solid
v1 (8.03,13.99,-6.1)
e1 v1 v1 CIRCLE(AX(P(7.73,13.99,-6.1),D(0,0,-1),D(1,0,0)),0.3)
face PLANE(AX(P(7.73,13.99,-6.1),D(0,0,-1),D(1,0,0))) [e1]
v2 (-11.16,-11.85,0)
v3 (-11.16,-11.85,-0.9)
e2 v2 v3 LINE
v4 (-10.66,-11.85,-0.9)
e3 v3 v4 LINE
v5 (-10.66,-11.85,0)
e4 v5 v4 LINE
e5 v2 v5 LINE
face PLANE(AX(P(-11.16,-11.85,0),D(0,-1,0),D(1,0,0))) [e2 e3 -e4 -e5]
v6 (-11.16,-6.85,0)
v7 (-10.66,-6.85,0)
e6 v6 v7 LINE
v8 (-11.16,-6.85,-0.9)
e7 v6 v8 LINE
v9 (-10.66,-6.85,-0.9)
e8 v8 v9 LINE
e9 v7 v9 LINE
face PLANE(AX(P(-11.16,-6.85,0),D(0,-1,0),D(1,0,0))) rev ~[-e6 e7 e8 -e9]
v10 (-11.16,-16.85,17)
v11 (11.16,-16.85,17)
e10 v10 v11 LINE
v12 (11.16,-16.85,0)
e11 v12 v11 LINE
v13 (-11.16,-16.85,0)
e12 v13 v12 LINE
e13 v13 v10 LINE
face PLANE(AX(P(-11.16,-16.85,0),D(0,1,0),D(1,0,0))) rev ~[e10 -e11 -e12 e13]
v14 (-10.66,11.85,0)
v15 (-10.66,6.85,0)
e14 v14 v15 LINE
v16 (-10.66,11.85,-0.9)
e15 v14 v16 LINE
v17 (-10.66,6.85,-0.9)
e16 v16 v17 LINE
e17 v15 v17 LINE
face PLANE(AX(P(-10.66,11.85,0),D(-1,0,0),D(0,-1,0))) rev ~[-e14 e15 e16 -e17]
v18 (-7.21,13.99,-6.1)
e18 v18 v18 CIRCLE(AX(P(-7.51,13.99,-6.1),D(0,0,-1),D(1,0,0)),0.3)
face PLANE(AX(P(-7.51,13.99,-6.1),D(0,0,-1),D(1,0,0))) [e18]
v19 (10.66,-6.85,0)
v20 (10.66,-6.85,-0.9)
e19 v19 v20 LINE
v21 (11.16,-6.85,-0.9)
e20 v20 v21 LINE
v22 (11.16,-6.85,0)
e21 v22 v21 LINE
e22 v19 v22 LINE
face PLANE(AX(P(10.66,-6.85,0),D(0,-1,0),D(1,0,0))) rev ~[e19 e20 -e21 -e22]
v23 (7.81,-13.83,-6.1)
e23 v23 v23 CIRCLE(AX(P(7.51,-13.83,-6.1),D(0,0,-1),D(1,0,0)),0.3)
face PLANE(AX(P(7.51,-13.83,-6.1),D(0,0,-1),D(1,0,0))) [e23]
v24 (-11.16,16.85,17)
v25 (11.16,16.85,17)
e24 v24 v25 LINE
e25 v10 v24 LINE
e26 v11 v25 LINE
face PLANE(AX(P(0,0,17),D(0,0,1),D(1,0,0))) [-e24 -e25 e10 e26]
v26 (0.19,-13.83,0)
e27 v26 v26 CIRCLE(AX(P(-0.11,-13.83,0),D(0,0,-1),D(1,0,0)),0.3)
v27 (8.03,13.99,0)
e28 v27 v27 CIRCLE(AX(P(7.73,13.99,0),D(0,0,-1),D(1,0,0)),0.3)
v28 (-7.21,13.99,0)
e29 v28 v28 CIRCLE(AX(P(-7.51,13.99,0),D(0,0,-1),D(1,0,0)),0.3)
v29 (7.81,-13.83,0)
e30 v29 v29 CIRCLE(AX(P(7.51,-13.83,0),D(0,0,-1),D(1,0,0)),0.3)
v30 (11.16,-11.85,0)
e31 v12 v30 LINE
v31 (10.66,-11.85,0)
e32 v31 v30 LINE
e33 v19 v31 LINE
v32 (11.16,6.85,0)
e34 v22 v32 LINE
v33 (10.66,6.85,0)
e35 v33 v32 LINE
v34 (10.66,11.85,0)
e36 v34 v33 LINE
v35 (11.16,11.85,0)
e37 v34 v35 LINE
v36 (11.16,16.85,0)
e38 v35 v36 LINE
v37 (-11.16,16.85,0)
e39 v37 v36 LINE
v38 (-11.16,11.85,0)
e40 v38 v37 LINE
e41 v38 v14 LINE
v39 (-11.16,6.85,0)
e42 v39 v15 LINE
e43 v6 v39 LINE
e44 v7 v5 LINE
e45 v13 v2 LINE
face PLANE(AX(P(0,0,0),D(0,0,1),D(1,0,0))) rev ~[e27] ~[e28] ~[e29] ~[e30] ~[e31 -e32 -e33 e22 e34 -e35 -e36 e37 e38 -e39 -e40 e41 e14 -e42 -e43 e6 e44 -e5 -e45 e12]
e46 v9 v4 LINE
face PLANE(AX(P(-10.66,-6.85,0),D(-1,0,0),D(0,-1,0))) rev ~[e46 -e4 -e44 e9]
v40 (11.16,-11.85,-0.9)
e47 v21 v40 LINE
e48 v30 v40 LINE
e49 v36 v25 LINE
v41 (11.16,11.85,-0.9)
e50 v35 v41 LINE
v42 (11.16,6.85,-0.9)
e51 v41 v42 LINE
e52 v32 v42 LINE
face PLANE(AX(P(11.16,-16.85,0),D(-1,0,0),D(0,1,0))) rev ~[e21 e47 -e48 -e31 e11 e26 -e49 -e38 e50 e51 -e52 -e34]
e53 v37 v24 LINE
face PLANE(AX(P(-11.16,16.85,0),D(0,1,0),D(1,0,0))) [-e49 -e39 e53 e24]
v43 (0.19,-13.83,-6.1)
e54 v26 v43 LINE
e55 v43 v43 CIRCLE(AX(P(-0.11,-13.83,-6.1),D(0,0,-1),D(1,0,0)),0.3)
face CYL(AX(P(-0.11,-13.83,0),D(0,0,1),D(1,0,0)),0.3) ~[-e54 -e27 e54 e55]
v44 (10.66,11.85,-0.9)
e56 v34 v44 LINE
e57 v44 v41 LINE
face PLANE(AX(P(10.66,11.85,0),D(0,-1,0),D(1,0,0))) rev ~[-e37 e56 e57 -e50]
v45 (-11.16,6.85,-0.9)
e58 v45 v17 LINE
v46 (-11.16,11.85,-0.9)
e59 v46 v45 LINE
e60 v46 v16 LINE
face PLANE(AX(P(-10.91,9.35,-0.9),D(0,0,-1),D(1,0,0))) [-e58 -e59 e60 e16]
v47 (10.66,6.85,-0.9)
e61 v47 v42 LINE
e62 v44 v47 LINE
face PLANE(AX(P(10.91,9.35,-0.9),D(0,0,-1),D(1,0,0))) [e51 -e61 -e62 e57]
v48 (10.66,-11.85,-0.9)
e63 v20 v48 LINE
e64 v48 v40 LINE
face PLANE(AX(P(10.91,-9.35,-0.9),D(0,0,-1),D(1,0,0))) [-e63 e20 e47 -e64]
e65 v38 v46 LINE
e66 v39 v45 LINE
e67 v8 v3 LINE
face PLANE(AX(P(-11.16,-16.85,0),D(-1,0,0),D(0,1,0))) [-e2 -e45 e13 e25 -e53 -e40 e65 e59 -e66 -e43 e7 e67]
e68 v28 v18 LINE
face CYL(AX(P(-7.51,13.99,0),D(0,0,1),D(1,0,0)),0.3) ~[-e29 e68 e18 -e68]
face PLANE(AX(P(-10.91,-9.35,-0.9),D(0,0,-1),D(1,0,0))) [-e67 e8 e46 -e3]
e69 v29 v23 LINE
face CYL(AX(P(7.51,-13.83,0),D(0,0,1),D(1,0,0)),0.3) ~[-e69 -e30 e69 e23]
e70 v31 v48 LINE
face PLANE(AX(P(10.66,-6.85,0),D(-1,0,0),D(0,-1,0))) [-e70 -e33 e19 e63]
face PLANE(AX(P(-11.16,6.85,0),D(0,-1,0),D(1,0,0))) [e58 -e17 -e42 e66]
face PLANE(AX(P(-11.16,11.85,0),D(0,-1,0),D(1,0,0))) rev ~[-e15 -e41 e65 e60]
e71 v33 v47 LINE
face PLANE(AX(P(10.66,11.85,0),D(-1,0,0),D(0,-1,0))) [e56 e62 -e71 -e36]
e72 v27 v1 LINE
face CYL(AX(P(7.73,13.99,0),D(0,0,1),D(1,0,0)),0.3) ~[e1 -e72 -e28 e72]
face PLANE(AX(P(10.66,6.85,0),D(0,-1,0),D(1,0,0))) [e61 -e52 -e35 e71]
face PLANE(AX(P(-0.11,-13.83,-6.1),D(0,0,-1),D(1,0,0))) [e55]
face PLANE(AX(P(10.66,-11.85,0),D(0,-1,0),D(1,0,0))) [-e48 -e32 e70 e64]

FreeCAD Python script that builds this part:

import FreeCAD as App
import Part
import Sketcher
Q = App.Units.Quantity

doc = App.newDocument("Part")
body = doc.addObject("PartDesign::Body", "Body")

sketch1 = body.newObject("Sketcher::SketchObject", "Sketch")
sketch1.AttachmentSupport = (doc.getObject("XY_Plane"), [""])
sketch1.MapMode = "FlatFace"
sketch1.addGeometry([
    Part.LineSegment(App.Vector(-11.16, 16.85, 0), App.Vector(-11.16, -16.85, 0)),
    Part.LineSegment(App.Vector(-11.16, -16.85, 0), App.Vector(11.16, -16.85, 0)),
    Part.LineSegment(App.Vector(11.16, -16.85, 0), App.Vector(11.16, 16.85, 0)),
    Part.LineSegment(App.Vector(11.16, 16.85, 0), App.Vector(-11.16, 16.85, 0)),
], False)
sketch1.addConstraint([
    Sketcher.Constraint("Coincident", 0, 2, 1, 1),
    Sketcher.Constraint("Coincident", 1, 2, 2, 1),
    Sketcher.Constraint("Coincident", 2, 2, 3, 1),
    Sketcher.Constraint("Coincident", 3, 2, 0, 1),
    Sketcher.Constraint("Vertical", 0),
    Sketcher.Constraint("Horizontal", 1),
    Sketcher.Constraint("Vertical", 2),
    Sketcher.Constraint("Horizontal", 3),
    Sketcher.Constraint("Symmetric", 0, 2, 2, 2, -1, 1),
    Sketcher.Constraint("DistanceY", 0, 2, 0, 1, Q("33.7 mm")),
    Sketcher.Constraint("DistanceX", 1, 1, 1, 2, Q("22.32 mm")),
])
pad1 = body.newObject("PartDesign::Pad", "Pad")
pad1.Profile = sketch1
pad1.Length = 17

sketch2 = body.newObject("Sketcher::SketchObject", "Sketch001")
sketch2.AttachmentSupport = (doc.getObject("XY_Plane"), [""])
sketch2.MapMode = "FlatFace"
sketch2.addGeometry([
    Part.Circle(App.Vector(-0.11, -13.83, 0), App.Vector(0, 0, 1), 0.3),
    Part.Circle(App.Vector(7.51, -13.83, 0), App.Vector(0, 0, 1), 0.3),
    Part.Circle(App.Vector(-7.51, 13.99, 0), App.Vector(0, 0, 1), 0.3),
    Part.Circle(App.Vector(7.73, 13.99, 0), App.Vector(0, 0, 1), 0.3),
], False)
sketch2.addConstraint([
    Sketcher.Constraint("Equal", 0, 1),
    Sketcher.Constraint("Equal", 1, 2),
    Sketcher.Constraint("Equal", 2, 3),
    Sketcher.Constraint("Horizontal", 0, 3, 1, 3),
    Sketcher.Constraint("Horizontal", 2, 3, 3, 3),
    Sketcher.Constraint("Diameter", 0, Q("0.6 mm")),
    Sketcher.Constraint("DistanceX", 2, 3, 0, 3, Q("7.4 mm")),
    Sketcher.Constraint("DistanceX", 0, 3, -1, 1, Q("0.11 mm")),
    Sketcher.Constraint("DistanceY", 0, 3, -1, 1, Q("13.83 mm")),
    Sketcher.Constraint("DistanceX", -1, 1, 1, 3, Q("7.51 mm")),
    Sketcher.Constraint("DistanceY", -1, 1, 2, 3, Q("13.99 mm")),
    Sketcher.Constraint("DistanceX", -1, 1, 3, 3, Q("7.73 mm")),
])
pad2 = body.newObject("PartDesign::Pad", "Pad001")
pad2.Profile = sketch2
pad2.Length = 6.1
pad2.Reversed = True

sketch3 = body.newObject("Sketcher::SketchObject", "Sketch002")
sketch3.AttachmentSupport = (doc.getObject("XY_Plane"), [""])
sketch3.MapMode = "FlatFace"
sketch3.addGeometry([
    Part.LineSegment(App.Vector(-11.16, -11.85, 0), App.Vector(-11.16, -6.85, 0)),
    Part.LineSegment(App.Vector(-11.16, -6.85, 0), App.Vector(-10.66, -6.85, 0)),
    Part.LineSegment(App.Vector(-10.66, -6.85, 0), App.Vector(-10.66, -11.85, 0)),
    Part.LineSegment(App.Vector(-10.66, -11.85, 0), App.Vector(-11.16, -11.85, 0)),
    Part.LineSegment(App.Vector(10.66, -11.85, 0), App.Vector(10.66, -6.85, 0)),
    Part.LineSegment(App.Vector(10.66, -6.85, 0), App.Vector(11.16, -6.85, 0)),
    Part.LineSegment(App.Vector(11.16, -6.85, 0), App.Vector(11.16, -11.85, 0)),
    Part.LineSegment(App.Vector(11.16, -11.85, 0), App.Vector(10.66, -11.85, 0)),
    Part.LineSegment(App.Vector(-11.16, 6.85, 0), App.Vector(-11.16, 11.85, 0)),
    Part.LineSegment(App.Vector(-11.16, 11.85, 0), App.Vector(-10.66, 11.85, 0)),
    Part.LineSegment(App.Vector(-10.66, 11.85, 0), App.Vector(-10.66, 6.85, 0)),
    Part.LineSegment(App.Vector(-10.66, 6.85, 0), App.Vector(-11.16, 6.85, 0)),
    Part.LineSegment(App.Vector(10.66, 6.85, 0), App.Vector(10.66, 11.85, 0)),
    Part.LineSegment(App.Vector(10.66, 11.85, 0), App.Vector(11.16, 11.85, 0)),
    Part.LineSegment(App.Vector(11.16, 11.85, 0), App.Vector(11.16, 6.85, 0)),
    Part.LineSegment(App.Vector(11.16, 6.85, 0), App.Vector(10.66, 6.85, 0)),
], False)
sketch3.addConstraint([
    Sketcher.Constraint("Coincident", 0, 2, 1, 1),
    Sketcher.Constraint("Coincident", 1, 2, 2, 1),
    Sketcher.Constraint("Coincident", 2, 2, 3, 1),
    Sketcher.Constraint("Coincident", 3, 2, 0, 1),
    Sketcher.Constraint("Coincident", 4, 2, 5, 1),
    Sketcher.Constraint("Coincident", 5, 2, 6, 1),
    Sketcher.Constraint("Coincident", 6, 2, 7, 1),
    Sketcher.Constraint("Coincident", 7, 2, 4, 1),
    Sketcher.Constraint("Coincident", 8, 2, 9, 1),
    Sketcher.Constraint("Coincident", 9, 2, 10, 1),
    Sketcher.Constraint("Coincident", 10, 2, 11, 1),
    Sketcher.Constraint("Coincident", 11, 2, 8, 1),
    Sketcher.Constraint("Coincident", 12, 2, 13, 1),
    Sketcher.Constraint("Coincident", 13, 2, 14, 1),
    Sketcher.Constraint("Coincident", 14, 2, 15, 1),
    Sketcher.Constraint("Coincident", 15, 2, 12, 1),
    Sketcher.Constraint("Vertical", 0),
    Sketcher.Constraint("Horizontal", 1),
    Sketcher.Constraint("Vertical", 2),
    Sketcher.Constraint("Horizontal", 3),
    Sketcher.Constraint("Vertical", 4),
    Sketcher.Constraint("Horizontal", 5),
    Sketcher.Constraint("Vertical", 6),
    Sketcher.Constraint("Horizontal", 7),
    Sketcher.Constraint("Vertical", 8),
    Sketcher.Constraint("Horizontal", 9),
    Sketcher.Constraint("Vertical", 10),
    Sketcher.Constraint("Horizontal", 11),
    Sketcher.Constraint("Vertical", 12),
    Sketcher.Constraint("Horizontal", 13),
    Sketcher.Constraint("Vertical", 14),
    Sketcher.Constraint("Horizontal", 15),
    Sketcher.Constraint("Symmetric", 6, 2, 8, 2, -1, 1),
    Sketcher.Constraint("Symmetric", 4, 2, 10, 2, -1, 1),
    Sketcher.Constraint("Symmetric", 2, 2, 12, 2, -1, 1),
    Sketcher.Constraint("Symmetric", 0, 2, 14, 2, -1, 1),
    Sketcher.Constraint("Symmetric", 1, 2, 4, 2, -2),
    Sketcher.Constraint("Symmetric", 3, 2, 6, 2, -2),
    Sketcher.Constraint("DistanceY", 0, 1, 0, 2, Q("5 mm")),
    Sketcher.Constraint("DistanceX", 1, 1, 1, 2, Q("0.5 mm")),
    Sketcher.Constraint("DistanceY", 0, 2, 8, 2, Q("18.7 mm")),
    Sketcher.Constraint("DistanceX", 0, 2, -1, 1, Q("11.16 mm")),
])
pad3 = body.newObject("PartDesign::Pad", "Pad002")
pad3.Profile = sketch3
pad3.Length = 0.9
pad3.Reversed = True

doc.recompute()
